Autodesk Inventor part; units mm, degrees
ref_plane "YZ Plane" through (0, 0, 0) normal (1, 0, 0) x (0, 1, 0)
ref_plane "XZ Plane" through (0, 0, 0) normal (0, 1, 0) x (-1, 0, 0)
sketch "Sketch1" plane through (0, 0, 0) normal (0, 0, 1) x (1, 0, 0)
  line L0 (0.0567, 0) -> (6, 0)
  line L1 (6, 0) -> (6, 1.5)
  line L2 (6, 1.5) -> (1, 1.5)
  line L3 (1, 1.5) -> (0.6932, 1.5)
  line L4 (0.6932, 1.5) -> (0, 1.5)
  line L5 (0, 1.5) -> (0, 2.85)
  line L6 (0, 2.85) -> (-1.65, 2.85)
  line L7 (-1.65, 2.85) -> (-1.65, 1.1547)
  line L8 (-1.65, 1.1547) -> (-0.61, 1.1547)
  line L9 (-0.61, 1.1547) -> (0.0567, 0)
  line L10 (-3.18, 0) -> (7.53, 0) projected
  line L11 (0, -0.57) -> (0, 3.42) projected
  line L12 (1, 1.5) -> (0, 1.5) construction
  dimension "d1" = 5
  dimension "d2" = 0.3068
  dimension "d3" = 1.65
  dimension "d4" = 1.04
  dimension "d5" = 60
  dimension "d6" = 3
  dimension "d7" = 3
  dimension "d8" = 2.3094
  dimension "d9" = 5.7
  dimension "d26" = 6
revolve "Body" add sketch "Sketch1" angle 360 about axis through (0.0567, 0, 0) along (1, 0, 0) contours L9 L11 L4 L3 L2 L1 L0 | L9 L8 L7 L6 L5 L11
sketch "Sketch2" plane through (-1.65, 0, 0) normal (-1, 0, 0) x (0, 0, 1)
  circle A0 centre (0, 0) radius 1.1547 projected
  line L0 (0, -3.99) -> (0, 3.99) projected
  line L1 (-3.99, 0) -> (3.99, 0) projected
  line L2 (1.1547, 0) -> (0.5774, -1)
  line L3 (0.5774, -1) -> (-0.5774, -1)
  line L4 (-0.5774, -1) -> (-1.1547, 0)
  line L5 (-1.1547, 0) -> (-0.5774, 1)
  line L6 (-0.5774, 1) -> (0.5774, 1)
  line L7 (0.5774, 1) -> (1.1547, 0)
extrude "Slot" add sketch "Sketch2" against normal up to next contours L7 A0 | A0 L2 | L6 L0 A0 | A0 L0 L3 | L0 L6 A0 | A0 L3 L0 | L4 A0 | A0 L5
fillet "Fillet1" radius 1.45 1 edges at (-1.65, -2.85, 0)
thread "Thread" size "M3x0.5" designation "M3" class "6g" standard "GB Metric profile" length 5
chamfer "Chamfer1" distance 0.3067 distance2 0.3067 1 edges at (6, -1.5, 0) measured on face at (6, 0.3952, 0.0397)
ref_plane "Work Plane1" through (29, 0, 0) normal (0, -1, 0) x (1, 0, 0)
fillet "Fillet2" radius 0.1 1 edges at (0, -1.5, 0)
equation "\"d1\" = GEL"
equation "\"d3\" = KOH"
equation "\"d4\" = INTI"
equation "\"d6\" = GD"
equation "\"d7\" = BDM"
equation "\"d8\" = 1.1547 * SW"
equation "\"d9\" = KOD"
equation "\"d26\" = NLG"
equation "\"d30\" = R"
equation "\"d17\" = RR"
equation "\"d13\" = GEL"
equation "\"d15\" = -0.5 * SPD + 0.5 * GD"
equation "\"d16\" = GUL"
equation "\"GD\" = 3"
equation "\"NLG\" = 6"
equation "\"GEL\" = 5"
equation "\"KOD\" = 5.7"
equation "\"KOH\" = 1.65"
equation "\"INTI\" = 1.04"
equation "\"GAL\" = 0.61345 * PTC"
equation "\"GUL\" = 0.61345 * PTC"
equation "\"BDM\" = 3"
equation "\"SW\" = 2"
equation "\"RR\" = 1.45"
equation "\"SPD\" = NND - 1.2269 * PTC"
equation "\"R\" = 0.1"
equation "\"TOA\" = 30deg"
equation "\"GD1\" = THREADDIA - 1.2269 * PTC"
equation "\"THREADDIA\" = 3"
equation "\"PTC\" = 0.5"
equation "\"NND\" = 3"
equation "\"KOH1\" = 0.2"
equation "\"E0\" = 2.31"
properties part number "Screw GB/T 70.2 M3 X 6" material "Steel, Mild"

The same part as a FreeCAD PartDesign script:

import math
import FreeCAD as App
import Part
import Sketcher

V = App.Vector


def edges_at(feature, points):
    """Names of the edges that pass closest to the given points."""
    edges = feature.Shape.Edges
    near = lambda p: min(range(len(edges)), key=lambda i: edges[i].distToShape(Part.Vertex(*p))[0])
    return sorted({f"Edge{near(p) + 1}" for p in points})


def add_polygon(sketch, points):
    """Adds a closed chain of lines whose ends are joined by coincident constraints."""
    first, n = sketch.GeometryCount, len(points)
    for a, b in zip(points, points[1:] + points[:1]):
        sketch.addGeometry(Part.LineSegment(App.Vector(*a, 0), App.Vector(*b, 0)), False)
    for i in range(n):
        sketch.addConstraint(Sketcher.Constraint("Coincident", first + i, 2, first + (i + 1) % n, 1))

doc = App.newDocument("Part")
params = doc.addObject("Spreadsheet::Sheet", "Params")
for row, (alias, value) in enumerate([
    ("sketch1_width", "6 mm"),
    ("sketch1_width2", "1.65 mm"),
    ("sketch1_width3", "1.04 mm"),
    ("sketch1_height", "1.5 mm"),
    ("sketch1_height2", "1.35 mm"),
    ("revolution_angle", "360 deg"),
    ("fillet_radius", "1.45 mm"),
    ("chamfer_size", "0.3067 mm"),
    ("chamfer_size2", "0.3067 mm"),
    ("fillet2_radius", "0.1 mm"),
], start=1):
    params.set(f"A{row}", alias)
    params.set(f"B{row}", "=" + value)
    params.setAlias(f"B{row}", alias)

body = doc.addObject("PartDesign::Body", "Body")

# Sketch on XY plane
sketch1 = body.newObject("Sketcher::SketchObject", "Sketch")
sketch1.AttachmentSupport = (doc.getObject("XY_Plane"), [""])
sketch1.MapMode = "FlatFace"
add_polygon(sketch1, [(0.1, 0), (6, 0), (6, 1.5), (0, 1.5), (0, 2.9), (-1.6, 2.9), (-1.6, 1.2), (-0.6, 1.2)])  # lines 0-7
sketch1.addConstraint(Sketcher.Constraint("Horizontal", 0))
sketch1.addConstraint(Sketcher.Constraint("Vertical", 1))
sketch1.addConstraint(Sketcher.Constraint("Horizontal", 2))
sketch1.addConstraint(Sketcher.Constraint("Vertical", 3))
sketch1.addConstraint(Sketcher.Constraint("Horizontal", 4))
sketch1.addConstraint(Sketcher.Constraint("Vertical", 5))
sketch1.addConstraint(Sketcher.Constraint("Horizontal", 6))
sketch1.addConstraint(Sketcher.Constraint("PointOnObject", 0, 2, -1))
sketch1.addConstraint(Sketcher.Constraint("PointOnObject", 2, 2, -2))
sketch1.addConstraint(Sketcher.Constraint("DistanceX", 2, 2, 2, 1, 6.0))
sketch1.addConstraint(Sketcher.Constraint("DistanceX", 4, 2, 4, 1, 1.65))
sketch1.addConstraint(Sketcher.Constraint("DistanceX", 6, 1, 6, 2, 1.04))
sketch1.addConstraint(Sketcher.Constraint("DistanceY", 1, 1, 1, 2, 1.5))
sketch1.addConstraint(Sketcher.Constraint("DistanceY", 3, 1, 3, 2, 1.35))
sketch1.addConstraint(Sketcher.Constraint("DistanceX", 0, 1, 0, 2, 5.9433))
sketch1.addConstraint(Sketcher.Constraint("DistanceY", 5, 2, 5, 1, 1.6953))
sketch1.setExpression("Constraints[17]", "Params.sketch1_width")
sketch1.setExpression("Constraints[18]", "Params.sketch1_width2")
sketch1.setExpression("Constraints[19]", "Params.sketch1_width3")
sketch1.setExpression("Constraints[20]", "Params.sketch1_height")
sketch1.setExpression("Constraints[21]", "Params.sketch1_height2")
revolution = body.newObject("PartDesign::Revolution", "Revolution")
revolution.Profile = sketch1
revolution.ReferenceAxis = (sketch1, ["H_Axis"])
revolution.setExpression("Angle", "Params.revolution_angle")

# Sketch on YZ plane
sketch2 = body.newObject("Sketcher::SketchObject", "Sketch001")
sketch2.AttachmentSupport = (doc.getObject("YZ_Plane"), [""])
sketch2.MapMode = "FlatFace"
sketch2.AttachmentOffset = App.Placement(V(0, 0, -1.65), App.Rotation())
sketch2.addGeometry(Part.LineSegment(V(1, 0.6, 0), V(0, 1.2, 0)), False)
sketch2.addGeometry(Part.ArcOfCircle(Part.Circle(V(0, 0, 0), V(0, 0, 1), 1.2), math.radians(30), math.radians(90)), False)
sketch2.addGeometry(Part.ArcOfCircle(Part.Circle(V(0, 0, 0), V(0, 0, 1), 1.2), math.radians(90), math.radians(150)), False)
sketch2.addGeometry(Part.LineSegment(V(0, 1.2, 0), V(-1, 0.6, 0)), False)
sketch2.addGeometry(Part.ArcOfCircle(Part.Circle(V(0, 0, 0), V(0, 0, 1), 1.2), math.radians(-30), math.radians(30)), False)
sketch2.addGeometry(Part.LineSegment(V(1, 0.6, 0), V(1, -0.6, 0)), False)
sketch2.addGeometry(Part.LineSegment(V(-1, 0.6, 0), V(-1, -0.6, 0)), False)
sketch2.addGeometry(Part.ArcOfCircle(Part.Circle(V(0, 0, 0), V(0, 0, 1), 1.2), math.radians(150), math.radians(210)), False)
sketch2.addGeometry(Part.LineSegment(V(-1, -0.6, 0), V(0, -1.2, 0)), False)
sketch2.addGeometry(Part.ArcOfCircle(Part.Circle(V(0, 0, 0), V(0, 0, 1), 1.2), math.radians(-150), math.radians(-90)), False)
sketch2.addGeometry(Part.ArcOfCircle(Part.Circle(V(0, 0, 0), V(0, 0, 1), 1.2), math.radians(-90), math.radians(-30)), False)
sketch2.addGeometry(Part.LineSegment(V(0, -1.2, 0), V(1, -0.6, 0)), False)
sketch2.addConstraint(Sketcher.Constraint("Coincident", 0, 1, 1, 1))
sketch2.addConstraint(Sketcher.Constraint("Coincident", 1, 2, 0, 2))
sketch2.addConstraint(Sketcher.Constraint("Coincident", 2, 1, 3, 1))
sketch2.addConstraint(Sketcher.Constraint("Coincident", 3, 2, 2, 2))
sketch2.addConstraint(Sketcher.Constraint("Coincident", 4, 1, 5, 2))
sketch2.addConstraint(Sketcher.Constraint("Coincident", 5, 1, 4, 2))
sketch2.addConstraint(Sketcher.Constraint("Coincident", 6, 1, 7, 1))
sketch2.addConstraint(Sketcher.Constraint("Coincident", 7, 2, 6, 2))
sketch2.addConstraint(Sketcher.Constraint("Coincident", 8, 1, 9, 1))
sketch2.addConstraint(Sketcher.Constraint("Coincident", 9, 2, 8, 2))
sketch2.addConstraint(Sketcher.Constraint("Coincident", 10, 1, 11, 1))
sketch2.addConstraint(Sketcher.Constraint("Coincident", 11, 2, 10, 2))
sketch2.addConstraint(Sketcher.Constraint("Vertical", 5))
sketch2.addConstraint(Sketcher.Constraint("Vertical", 6))
sketch2.addConstraint(Sketcher.Constraint("Coincident", 1, 3, -1, 1))
sketch2.addConstraint(Sketcher.Constraint("Coincident", 2, 3, -1, 1))
sketch2.addConstraint(Sketcher.Constraint("Coincident", 4, 3, -1, 1))
sketch2.addConstraint(Sketcher.Constraint("Coincident", 7, 3, -1, 1))
sketch2.addConstraint(Sketcher.Constraint("Coincident", 9, 3, -1, 1))
sketch2.addConstraint(Sketcher.Constraint("Coincident", 10, 3, -1, 1))
sketch2.addConstraint(Sketcher.Constraint("Coincident", 2, 1, 1, 2))
sketch2.addConstraint(Sketcher.Constraint("Coincident", 5, 1, 0, 1))
sketch2.addConstraint(Sketcher.Constraint("Coincident", 6, 1, 3, 2))
sketch2.addConstraint(Sketcher.Constraint("Coincident", 8, 1, 7, 2))
sketch2.addConstraint(Sketcher.Constraint("Coincident", 10, 1, 9, 2))
sketch2.addConstraint(Sketcher.Constraint("PointOnObject", 1, 2, -2))
sketch2.addConstraint(Sketcher.Constraint("PointOnObject", 9, 2, -2))
sketch2.addConstraint(Sketcher.Constraint("Parallel", 0, 8))
sketch2.addConstraint(Sketcher.Constraint("Parallel", 3, 11))
sketch2.addConstraint(Sketcher.Constraint("DistanceX", -1, 1, 0, 1, 1.0))
sketch2.addConstraint(Sketcher.Constraint("Radius", 1, 1.1547))
pad1 = body.newObject("PartDesign::Pad", "Pad")
pad1.Profile = sketch2
pad1.Type = "UpToFirst"
doc.recompute()

fillet = body.newObject("PartDesign::Fillet", "Fillet")
fillet.Base = (pad1, edges_at(pad1, [(-1.65, -2.85, 0)]))
fillet.setExpression("Radius", "Params.fillet_radius")
doc.recompute()

chamfer = body.newObject("PartDesign::Chamfer", "Chamfer")
chamfer.Base = (fillet, edges_at(fillet, [(6, -1.5, 0)]))
chamfer.ChamferType = "Two distances"
chamfer.setExpression("Size", "Params.chamfer_size")
chamfer.setExpression("Size2", "Params.chamfer_size2")
doc.recompute()

fillet2 = body.newObject("PartDesign::Fillet", "Fillet001")
fillet2.Base = (chamfer, edges_at(chamfer, [(0, -1.5, 0)]))
fillet2.setExpression("Radius", "Params.fillet2_radius")

doc.recompute()
